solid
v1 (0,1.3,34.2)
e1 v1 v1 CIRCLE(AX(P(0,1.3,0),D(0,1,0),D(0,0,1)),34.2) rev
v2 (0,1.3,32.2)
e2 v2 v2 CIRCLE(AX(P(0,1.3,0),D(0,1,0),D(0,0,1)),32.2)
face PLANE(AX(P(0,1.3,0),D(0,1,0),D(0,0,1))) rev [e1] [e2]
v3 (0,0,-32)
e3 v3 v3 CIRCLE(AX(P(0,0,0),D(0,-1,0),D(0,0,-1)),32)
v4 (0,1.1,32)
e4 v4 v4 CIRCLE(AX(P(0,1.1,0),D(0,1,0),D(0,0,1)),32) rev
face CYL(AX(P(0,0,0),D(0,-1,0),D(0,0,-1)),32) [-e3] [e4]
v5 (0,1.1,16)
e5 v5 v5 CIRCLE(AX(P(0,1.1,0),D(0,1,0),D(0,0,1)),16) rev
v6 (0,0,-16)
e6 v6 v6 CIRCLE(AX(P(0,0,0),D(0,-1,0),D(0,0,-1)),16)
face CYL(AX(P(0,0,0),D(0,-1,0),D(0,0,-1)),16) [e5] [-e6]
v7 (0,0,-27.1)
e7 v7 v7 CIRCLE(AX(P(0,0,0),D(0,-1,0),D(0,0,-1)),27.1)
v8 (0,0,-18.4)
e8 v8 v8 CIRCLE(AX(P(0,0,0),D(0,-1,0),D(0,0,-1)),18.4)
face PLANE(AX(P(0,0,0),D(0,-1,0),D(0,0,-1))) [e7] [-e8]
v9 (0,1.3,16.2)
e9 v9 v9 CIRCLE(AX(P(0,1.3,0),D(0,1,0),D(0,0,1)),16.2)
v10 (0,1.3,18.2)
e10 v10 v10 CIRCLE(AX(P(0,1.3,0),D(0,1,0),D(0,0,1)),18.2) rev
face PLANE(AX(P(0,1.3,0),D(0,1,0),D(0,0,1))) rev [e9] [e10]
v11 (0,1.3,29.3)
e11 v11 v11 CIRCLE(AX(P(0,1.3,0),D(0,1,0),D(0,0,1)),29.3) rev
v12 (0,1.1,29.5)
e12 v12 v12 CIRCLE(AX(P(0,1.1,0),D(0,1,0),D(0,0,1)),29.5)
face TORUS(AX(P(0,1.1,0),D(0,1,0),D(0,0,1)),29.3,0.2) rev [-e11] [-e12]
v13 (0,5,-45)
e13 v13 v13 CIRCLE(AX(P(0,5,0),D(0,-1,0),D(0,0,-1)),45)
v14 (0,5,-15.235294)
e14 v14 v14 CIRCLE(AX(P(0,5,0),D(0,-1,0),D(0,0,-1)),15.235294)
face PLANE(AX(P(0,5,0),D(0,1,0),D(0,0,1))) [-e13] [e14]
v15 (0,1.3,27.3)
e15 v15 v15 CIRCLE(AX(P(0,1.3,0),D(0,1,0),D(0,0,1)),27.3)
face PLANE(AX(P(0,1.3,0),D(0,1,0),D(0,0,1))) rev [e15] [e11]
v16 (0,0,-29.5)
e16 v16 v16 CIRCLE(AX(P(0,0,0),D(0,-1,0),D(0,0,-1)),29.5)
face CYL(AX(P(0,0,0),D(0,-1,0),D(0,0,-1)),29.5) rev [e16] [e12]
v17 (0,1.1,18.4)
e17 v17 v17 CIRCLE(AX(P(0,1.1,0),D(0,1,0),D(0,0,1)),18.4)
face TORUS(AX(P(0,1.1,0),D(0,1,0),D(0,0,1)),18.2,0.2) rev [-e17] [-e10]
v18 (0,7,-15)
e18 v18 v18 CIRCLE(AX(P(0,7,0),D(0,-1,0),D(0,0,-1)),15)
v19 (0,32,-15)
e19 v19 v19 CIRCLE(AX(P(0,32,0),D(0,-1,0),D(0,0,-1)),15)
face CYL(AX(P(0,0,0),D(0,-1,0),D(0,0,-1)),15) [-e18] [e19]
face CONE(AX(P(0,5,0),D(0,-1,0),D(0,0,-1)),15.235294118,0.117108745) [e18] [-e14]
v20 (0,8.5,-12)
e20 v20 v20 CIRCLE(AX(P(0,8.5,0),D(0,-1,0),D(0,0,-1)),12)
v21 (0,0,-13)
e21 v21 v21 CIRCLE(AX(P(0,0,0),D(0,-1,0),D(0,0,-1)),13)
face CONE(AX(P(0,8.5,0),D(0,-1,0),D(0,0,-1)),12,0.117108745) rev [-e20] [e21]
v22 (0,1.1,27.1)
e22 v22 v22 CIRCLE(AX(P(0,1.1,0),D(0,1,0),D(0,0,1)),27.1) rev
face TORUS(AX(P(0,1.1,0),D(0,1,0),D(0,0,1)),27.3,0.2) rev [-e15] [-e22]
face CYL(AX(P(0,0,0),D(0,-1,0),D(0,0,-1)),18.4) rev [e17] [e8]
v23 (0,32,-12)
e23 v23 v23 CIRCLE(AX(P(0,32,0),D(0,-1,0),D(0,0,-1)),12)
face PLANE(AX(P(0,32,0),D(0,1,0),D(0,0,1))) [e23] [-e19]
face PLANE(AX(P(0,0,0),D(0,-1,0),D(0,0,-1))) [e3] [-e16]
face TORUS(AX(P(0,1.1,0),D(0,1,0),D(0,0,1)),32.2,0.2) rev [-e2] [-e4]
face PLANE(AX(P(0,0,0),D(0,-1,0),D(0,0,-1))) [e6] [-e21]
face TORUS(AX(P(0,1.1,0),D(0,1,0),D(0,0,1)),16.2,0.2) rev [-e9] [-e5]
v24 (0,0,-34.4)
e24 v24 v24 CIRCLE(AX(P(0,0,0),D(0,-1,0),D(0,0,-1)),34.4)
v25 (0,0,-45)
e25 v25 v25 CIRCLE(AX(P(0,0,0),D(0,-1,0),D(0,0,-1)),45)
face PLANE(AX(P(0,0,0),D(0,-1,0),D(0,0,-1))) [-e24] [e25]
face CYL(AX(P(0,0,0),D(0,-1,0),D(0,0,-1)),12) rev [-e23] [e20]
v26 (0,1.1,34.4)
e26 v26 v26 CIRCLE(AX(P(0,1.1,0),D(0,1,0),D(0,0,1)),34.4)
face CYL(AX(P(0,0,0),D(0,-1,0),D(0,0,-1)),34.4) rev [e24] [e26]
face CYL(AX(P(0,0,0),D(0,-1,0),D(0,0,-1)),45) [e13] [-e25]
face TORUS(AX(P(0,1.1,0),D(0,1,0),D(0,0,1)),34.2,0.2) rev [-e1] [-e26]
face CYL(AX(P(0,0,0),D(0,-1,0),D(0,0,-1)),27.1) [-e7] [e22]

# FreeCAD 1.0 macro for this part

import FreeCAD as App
import Part
import Sketcher
from FreeCAD import Vector
Q = App.Units.Quantity


def edges_at(feature, points):
    """Names of the edges that pass closest to the given points."""
    edges = feature.Shape.Edges
    near = lambda p: min(range(len(edges)), key=lambda i: edges[i].distToShape(Part.Vertex(*p))[0])
    return sorted({f"Edge{near(p) + 1}" for p in points})

doc = App.newDocument("Part")
body = doc.addObject("PartDesign::Body", "Body")

sketch1 = doc.addObject("Sketcher::SketchObject", "Sketch")
body.addObject(sketch1)
sketch1.AttachmentSupport = (doc.XY_Plane, [""])
sketch1.MapMode = "FlatFace"
sketch1.addGeometry(Part.LineSegment(Vector(-45, 5, 0), Vector(-45, 0, 0)), False)
sketch1.addGeometry(Part.LineSegment(Vector(-45, 0, 0), Vector(-34.4, 0, 0)), False)
sketch1.addGeometry(Part.LineSegment(Vector(-34.4, 0, 0), Vector(-34.4, 1.3, 0)), False)
sketch1.addGeometry(Part.LineSegment(Vector(-34.4, 1.3, 0), Vector(-32, 1.3, 0)), False)
sketch1.addGeometry(Part.LineSegment(Vector(-32, 1.3, 0), Vector(-32, 0, 0)), False)
sketch1.addGeometry(Part.LineSegment(Vector(-32, 0, 0), Vector(-29.5, 0, 0)), False)
sketch1.addGeometry(Part.LineSegment(Vector(-29.5, 0, 0), Vector(-29.5, 1.3, 0)), False)
sketch1.addGeometry(Part.LineSegment(Vector(-29.5, 1.3, 0), Vector(-27.1, 1.3, 0)), False)
sketch1.addGeometry(Part.LineSegment(Vector(-27.1, 1.3, 0), Vector(-27.1, 0, 0)), False)
sketch1.addGeometry(Part.LineSegment(Vector(-27.1, 0, 0), Vector(-18.4, 0, 0)), False)
sketch1.addGeometry(Part.LineSegment(Vector(-18.4, 0, 0), Vector(-18.4, 1.3, 0)), False)
sketch1.addGeometry(Part.LineSegment(Vector(-18.4, 1.3, 0), Vector(-16, 1.3, 0)), False)
sketch1.addGeometry(Part.LineSegment(Vector(-16, 1.3, 0), Vector(-16, 0, 0)), False)
sketch1.addGeometry(Part.LineSegment(Vector(-16, 0, 0), Vector(-13, 0, 0)), False)
sketch1.addGeometry(Part.LineSegment(Vector(-13, 0, 0), Vector(-12, 8.5, 0)), False)
sketch1.addGeometry(Part.LineSegment(Vector(-12, 8.5, 0), Vector(-12, 32, 0)), False)
sketch1.addGeometry(Part.LineSegment(Vector(-12, 32, 0), Vector(-15, 32, 0)), False)
sketch1.addGeometry(Part.LineSegment(Vector(-15, 32, 0), Vector(-15, 7, 0)), False)
sketch1.addGeometry(Part.LineSegment(Vector(-15, 7, 0), Vector(-15.2, 5, 0)), False)
sketch1.addGeometry(Part.LineSegment(Vector(-15.2, 5, 0), Vector(-45, 5, 0)), False)
sketch1.addConstraint(Sketcher.Constraint("Coincident", 0, 2, 1, 1))
sketch1.addConstraint(Sketcher.Constraint("Coincident", 1, 2, 2, 1))
sketch1.addConstraint(Sketcher.Constraint("Coincident", 2, 2, 3, 1))
sketch1.addConstraint(Sketcher.Constraint("Coincident", 3, 2, 4, 1))
sketch1.addConstraint(Sketcher.Constraint("Coincident", 4, 2, 5, 1))
sketch1.addConstraint(Sketcher.Constraint("Coincident", 5, 2, 6, 1))
sketch1.addConstraint(Sketcher.Constraint("Coincident", 6, 2, 7, 1))
sketch1.addConstraint(Sketcher.Constraint("Coincident", 7, 2, 8, 1))
sketch1.addConstraint(Sketcher.Constraint("Coincident", 8, 2, 9, 1))
sketch1.addConstraint(Sketcher.Constraint("Coincident", 9, 2, 10, 1))
sketch1.addConstraint(Sketcher.Constraint("Coincident", 10, 2, 11, 1))
sketch1.addConstraint(Sketcher.Constraint("Coincident", 11, 2, 12, 1))
sketch1.addConstraint(Sketcher.Constraint("Coincident", 12, 2, 13, 1))
sketch1.addConstraint(Sketcher.Constraint("Coincident", 13, 2, 14, 1))
sketch1.addConstraint(Sketcher.Constraint("Coincident", 14, 2, 15, 1))
sketch1.addConstraint(Sketcher.Constraint("Coincident", 15, 2, 16, 1))
sketch1.addConstraint(Sketcher.Constraint("Coincident", 16, 2, 17, 1))
sketch1.addConstraint(Sketcher.Constraint("Coincident", 17, 2, 18, 1))
sketch1.addConstraint(Sketcher.Constraint("Coincident", 18, 2, 19, 1))
sketch1.addConstraint(Sketcher.Constraint("Coincident", 19, 2, 0, 1))
sketch1.addConstraint(Sketcher.Constraint("Vertical", 0))
sketch1.addConstraint(Sketcher.Constraint("Horizontal", 1))
sketch1.addConstraint(Sketcher.Constraint("Vertical", 2))
sketch1.addConstraint(Sketcher.Constraint("Horizontal", 3))
sketch1.addConstraint(Sketcher.Constraint("Vertical", 4))
sketch1.addConstraint(Sketcher.Constraint("Horizontal", 5))
sketch1.addConstraint(Sketcher.Constraint("Vertical", 6))
sketch1.addConstraint(Sketcher.Constraint("Horizontal", 7))
sketch1.addConstraint(Sketcher.Constraint("Vertical", 8))
sketch1.addConstraint(Sketcher.Constraint("Horizontal", 9))
sketch1.addConstraint(Sketcher.Constraint("Vertical", 10))
sketch1.addConstraint(Sketcher.Constraint("Horizontal", 11))
sketch1.addConstraint(Sketcher.Constraint("Vertical", 12))
sketch1.addConstraint(Sketcher.Constraint("Horizontal", 13))
sketch1.addConstraint(Sketcher.Constraint("Vertical", 15))
sketch1.addConstraint(Sketcher.Constraint("Horizontal", 16))
sketch1.addConstraint(Sketcher.Constraint("Vertical", 17))
sketch1.addConstraint(Sketcher.Constraint("Horizontal", 19))
sketch1.addConstraint(Sketcher.Constraint("PointOnObject", 0, 2, -1))
sketch1.addConstraint(Sketcher.Constraint("PointOnObject", 4, 2, -1))
sketch1.addConstraint(Sketcher.Constraint("PointOnObject", 8, 2, -1))
sketch1.addConstraint(Sketcher.Constraint("PointOnObject", 12, 2, -1))
sketch1.addConstraint(Sketcher.Constraint("Parallel", 14, 18))
sketch1.addConstraint(Sketcher.Constraint("Horizontal", 3, 2, 6, 2))
sketch1.addConstraint(Sketcher.Constraint("Horizontal", 7, 2, 10, 2))
sketch1.addConstraint(Sketcher.Constraint("Equal", 3, 7))
sketch1.addConstraint(Sketcher.Constraint("Equal", 7, 11))
sketch1.addConstraint(Sketcher.Constraint("Equal", 13, 16))
sketch1.addConstraint(Sketcher.Constraint("DistanceX", 13, 1, 13, 2, Q("3 mm")))
sketch1.addConstraint(Sketcher.Constraint("DistanceY", 0, 2, 0, 1, Q("5 mm")))
sketch1.addConstraint(Sketcher.Constraint("DistanceY", 17, 2, 17, 1, Q("25 mm")))
sketch1.addConstraint(Sketcher.Constraint("DistanceX", 1, 1, 1, 2, Q("10.6 mm")))
sketch1.addConstraint(Sketcher.Constraint("DistanceX", 3, 1, 3, 2, Q("2.4 mm")))
sketch1.addConstraint(Sketcher.Constraint("DistanceX", 5, 1, 5, 2, Q("2.5 mm")))
sketch1.addConstraint(Sketcher.Constraint("DistanceX", 9, 1, 9, 2, Q("8.7 mm")))
sketch1.addConstraint(Sketcher.Constraint("DistanceY", 2, 1, 2, 2, Q("1.3 mm")))
sketch1.addConstraint(Sketcher.Constraint("DistanceY", 15, 1, 15, 2, Q("23.5 mm")))
sketch1.addConstraint(Sketcher.Constraint("DistanceX", 0, 2, -1, 1, Q("45 mm")))
sketch1.addConstraint(Sketcher.Constraint("DistanceX", 14, 2, -1, 1, Q("12 mm")))
sketch1.addConstraint(Sketcher.Constraint("DistanceY", -1, 1, 15, 2, Q("32 mm")))
revolution = doc.addObject("PartDesign::Revolution", "Revolution")
body.addObject(revolution)
revolution.Profile = sketch1
revolution.ReferenceAxis = (sketch1, ["V_Axis"])
revolution.Angle = 360
doc.recompute()

fillet = doc.addObject("PartDesign::Fillet", "Fillet")
body.addObject(fillet)
fillet.Base = (revolution, edges_at(revolution, [
    (0, 1.3, 16),
    (0, 1.3, 18.4),
    (0, 1.3, 27.1),
    (0, 1.3, 29.5),
    (0, 1.3, 32),
    (0, 1.3, 34.4),
]))
fillet.Radius = 0.2

doc.recompute()
